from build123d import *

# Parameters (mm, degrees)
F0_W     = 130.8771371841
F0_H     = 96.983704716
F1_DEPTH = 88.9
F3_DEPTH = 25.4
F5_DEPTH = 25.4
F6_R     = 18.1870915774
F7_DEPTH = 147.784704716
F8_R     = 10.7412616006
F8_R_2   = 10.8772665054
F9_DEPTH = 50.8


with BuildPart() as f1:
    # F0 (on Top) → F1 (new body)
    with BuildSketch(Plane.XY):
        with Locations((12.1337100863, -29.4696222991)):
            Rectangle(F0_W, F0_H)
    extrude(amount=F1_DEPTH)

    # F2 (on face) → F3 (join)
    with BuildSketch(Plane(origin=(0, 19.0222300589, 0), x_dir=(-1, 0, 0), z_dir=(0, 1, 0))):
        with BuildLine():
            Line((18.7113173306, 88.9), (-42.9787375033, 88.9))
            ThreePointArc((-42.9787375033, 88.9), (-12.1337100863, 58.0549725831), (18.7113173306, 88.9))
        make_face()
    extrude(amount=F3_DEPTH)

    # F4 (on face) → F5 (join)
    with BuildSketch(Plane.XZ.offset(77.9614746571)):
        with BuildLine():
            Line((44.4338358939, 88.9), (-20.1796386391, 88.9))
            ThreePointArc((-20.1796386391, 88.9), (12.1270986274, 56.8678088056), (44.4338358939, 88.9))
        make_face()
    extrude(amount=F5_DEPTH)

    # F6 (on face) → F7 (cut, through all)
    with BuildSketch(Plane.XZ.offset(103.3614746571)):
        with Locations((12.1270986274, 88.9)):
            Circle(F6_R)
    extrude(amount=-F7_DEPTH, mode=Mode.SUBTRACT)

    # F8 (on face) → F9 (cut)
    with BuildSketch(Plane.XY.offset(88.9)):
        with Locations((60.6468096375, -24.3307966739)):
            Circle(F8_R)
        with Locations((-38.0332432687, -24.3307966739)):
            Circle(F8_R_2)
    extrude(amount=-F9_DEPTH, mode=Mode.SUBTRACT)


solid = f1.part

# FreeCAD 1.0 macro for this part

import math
import FreeCAD as App
import Part
import Sketcher

V = App.Vector
Q = App.Units.Quantity


def add_polygon(sketch, points):
    """Adds a closed chain of lines whose ends are joined by coincident constraints."""
    first, n = sketch.GeometryCount, len(points)
    for a, b in zip(points, points[1:] + points[:1]):
        sketch.addGeometry(Part.LineSegment(App.Vector(*a, 0), App.Vector(*b, 0)), False)
    for i in range(n):
        sketch.addConstraint(Sketcher.Constraint("Coincident", first + i, 2, first + (i + 1) % n, 1))

doc = App.newDocument("Part")
body = doc.addObject("PartDesign::Body", "Body")

sketch1 = body.newObject("Sketcher::SketchObject", "Sketch")
sketch1.AttachmentSupport = (doc.getObject("XY_Plane"), [""])
sketch1.MapMode = "FlatFace"
add_polygon(sketch1, [(-53, 19), (-53, -78), (78, -78), (78, 19)])
sketch1.addConstraint([
    Sketcher.Constraint("Vertical", 0),
    Sketcher.Constraint("Horizontal", 1),
    Sketcher.Constraint("Vertical", 2),
    Sketcher.Constraint("Horizontal", 3),
    Sketcher.Constraint("DistanceX", 1, 1, 1, 2, Q("130.877137 mm")),
    Sketcher.Constraint("DistanceY", 0, 2, 0, 1, Q("96.983705 mm")),
    Sketcher.Constraint("DistanceX", 0, 2, -1, 1, Q("53.304859 mm")),
    Sketcher.Constraint("DistanceY", -1, 1, 2, 2, Q("19.02223 mm")),
])
pad1 = body.newObject("PartDesign::Pad", "Pad")
pad1.Profile = sketch1
pad1.Length = Q("3.5 in")

sketch2 = body.newObject("Sketcher::SketchObject", "Sketch001")
sketch2.AttachmentSupport = (doc.getObject("XZ_Plane"), [""])
sketch2.MapMode = "FlatFace"
sketch2.AttachmentOffset = App.Placement(V(0, 0, -19.02223), App.Rotation())
sketch2.addGeometry([
    Part.LineSegment(V(-19, 89, 0), V(43, 89, 0)),
    Part.ArcOfCircle(Part.Circle(V(12, 89, 0), V(0, 0, 1), 31), math.radians(180), math.radians(360)),
], False)
sketch2.addConstraint([
    Sketcher.Constraint("Coincident", 0, 1, 1, 1),
    Sketcher.Constraint("Coincident", 1, 2, 0, 2),
    Sketcher.Constraint("Horizontal", 0),
    Sketcher.Constraint("Horizontal", 1, 3, 0, 1),
    Sketcher.Constraint("DistanceY", -1, 1, 1, 3, Q("3.5 in")),
    Sketcher.Constraint("Radius", 1, Q("30.845027 mm")),
    Sketcher.Constraint("DistanceX", -1, 1, 1, 3, Q("12.13371 mm")),
])
pad2 = body.newObject("PartDesign::Pad", "Pad001")
pad2.Profile = sketch2
pad2.Length = Q("1 in")
pad2.Reversed = True

sketch3 = body.newObject("Sketcher::SketchObject", "Sketch002")
sketch3.AttachmentSupport = (doc.getObject("XZ_Plane"), [""])
sketch3.MapMode = "FlatFace"
sketch3.AttachmentOffset = App.Placement(V(0, 0, 77.961475), App.Rotation())
sketch3.addGeometry([
    Part.LineSegment(V(44.433836, 88.9, 0), V(-20.179639, 88.9, 0)),
    Part.ArcOfCircle(Part.Circle(V(12.127099, 89.175723, 0), V(0, 0, 1), 32.307914), math.radians(-179.51102), math.radians(-0.48898)),
], False)
sketch3.addConstraint([
    Sketcher.Constraint("Coincident", 0, 1, 1, 2),
    Sketcher.Constraint("Coincident", 1, 1, 0, 2),
    Sketcher.Constraint("Horizontal", 0),
    Sketcher.Constraint("DistanceY", -1, 1, 0, 1, Q("3.5 in")),
    Sketcher.Constraint("Radius", 1, Q("32.307914 mm")),
    Sketcher.Constraint("DistanceX", -1, 1, 1, 3, Q("12.127099 mm")),
    Sketcher.Constraint("DistanceX", 0, 2, 0, 1, Q("64.613475 mm")),
])
pad3 = body.newObject("PartDesign::Pad", "Pad002")
pad3.Profile = sketch3
pad3.Length = Q("1 in")

sketch4 = body.newObject("Sketcher::SketchObject", "Sketch003")
sketch4.AttachmentSupport = (doc.getObject("XZ_Plane"), [""])
sketch4.MapMode = "FlatFace"
sketch4.AttachmentOffset = App.Placement(V(0, 0, 103.361475), App.Rotation())
sketch4.addGeometry(Part.Circle(V(12, 89, 0), V(0, 0, 1), 18), False)
sketch4.addConstraint([
    Sketcher.Constraint("DistanceY", -1, 1, 0, 3, Q("3.5 in")),
    Sketcher.Constraint("Diameter", 0, Q("36.374183 mm")),
    Sketcher.Constraint("DistanceX", -1, 1, 0, 3, Q("12.127099 mm")),
])
pocket1 = body.newObject("PartDesign::Pocket", "Pocket")
pocket1.Profile = sketch4
pocket1.Type = "ThroughAll"

sketch5 = body.newObject("Sketcher::SketchObject", "Sketch004")
sketch5.AttachmentSupport = (doc.getObject("XY_Plane"), [""])
sketch5.MapMode = "FlatFace"
sketch5.AttachmentOffset = App.Placement(V(0, 0, 3.5 * 25.4), App.Rotation())
sketch5.addGeometry([
    Part.Circle(V(61, -24, 0), V(0, 0, 1), 11),
    Part.Circle(V(-38, -24, 0), V(0, 0, 1), 11),
], False)
sketch5.addConstraint([
    Sketcher.Constraint("Horizontal", 0, 3, 1, 3),
    Sketcher.Constraint("Diameter", 0, Q("21.482523 mm")),
    Sketcher.Constraint("Diameter", 1, Q("21.754533 mm")),
    Sketcher.Constraint("DistanceX", -1, 1, 0, 3, Q("60.64681 mm")),
    Sketcher.Constraint("DistanceY", 0, 3, -1, 1, Q("24.330797 mm")),
    Sketcher.Constraint("DistanceX", 1, 3, -1, 1, Q("38.033243 mm")),
])
pocket2 = body.newObject("PartDesign::Pocket", "Pocket001")
pocket2.Profile = sketch5
pocket2.Length = Q("2 in")

doc.recompute()
